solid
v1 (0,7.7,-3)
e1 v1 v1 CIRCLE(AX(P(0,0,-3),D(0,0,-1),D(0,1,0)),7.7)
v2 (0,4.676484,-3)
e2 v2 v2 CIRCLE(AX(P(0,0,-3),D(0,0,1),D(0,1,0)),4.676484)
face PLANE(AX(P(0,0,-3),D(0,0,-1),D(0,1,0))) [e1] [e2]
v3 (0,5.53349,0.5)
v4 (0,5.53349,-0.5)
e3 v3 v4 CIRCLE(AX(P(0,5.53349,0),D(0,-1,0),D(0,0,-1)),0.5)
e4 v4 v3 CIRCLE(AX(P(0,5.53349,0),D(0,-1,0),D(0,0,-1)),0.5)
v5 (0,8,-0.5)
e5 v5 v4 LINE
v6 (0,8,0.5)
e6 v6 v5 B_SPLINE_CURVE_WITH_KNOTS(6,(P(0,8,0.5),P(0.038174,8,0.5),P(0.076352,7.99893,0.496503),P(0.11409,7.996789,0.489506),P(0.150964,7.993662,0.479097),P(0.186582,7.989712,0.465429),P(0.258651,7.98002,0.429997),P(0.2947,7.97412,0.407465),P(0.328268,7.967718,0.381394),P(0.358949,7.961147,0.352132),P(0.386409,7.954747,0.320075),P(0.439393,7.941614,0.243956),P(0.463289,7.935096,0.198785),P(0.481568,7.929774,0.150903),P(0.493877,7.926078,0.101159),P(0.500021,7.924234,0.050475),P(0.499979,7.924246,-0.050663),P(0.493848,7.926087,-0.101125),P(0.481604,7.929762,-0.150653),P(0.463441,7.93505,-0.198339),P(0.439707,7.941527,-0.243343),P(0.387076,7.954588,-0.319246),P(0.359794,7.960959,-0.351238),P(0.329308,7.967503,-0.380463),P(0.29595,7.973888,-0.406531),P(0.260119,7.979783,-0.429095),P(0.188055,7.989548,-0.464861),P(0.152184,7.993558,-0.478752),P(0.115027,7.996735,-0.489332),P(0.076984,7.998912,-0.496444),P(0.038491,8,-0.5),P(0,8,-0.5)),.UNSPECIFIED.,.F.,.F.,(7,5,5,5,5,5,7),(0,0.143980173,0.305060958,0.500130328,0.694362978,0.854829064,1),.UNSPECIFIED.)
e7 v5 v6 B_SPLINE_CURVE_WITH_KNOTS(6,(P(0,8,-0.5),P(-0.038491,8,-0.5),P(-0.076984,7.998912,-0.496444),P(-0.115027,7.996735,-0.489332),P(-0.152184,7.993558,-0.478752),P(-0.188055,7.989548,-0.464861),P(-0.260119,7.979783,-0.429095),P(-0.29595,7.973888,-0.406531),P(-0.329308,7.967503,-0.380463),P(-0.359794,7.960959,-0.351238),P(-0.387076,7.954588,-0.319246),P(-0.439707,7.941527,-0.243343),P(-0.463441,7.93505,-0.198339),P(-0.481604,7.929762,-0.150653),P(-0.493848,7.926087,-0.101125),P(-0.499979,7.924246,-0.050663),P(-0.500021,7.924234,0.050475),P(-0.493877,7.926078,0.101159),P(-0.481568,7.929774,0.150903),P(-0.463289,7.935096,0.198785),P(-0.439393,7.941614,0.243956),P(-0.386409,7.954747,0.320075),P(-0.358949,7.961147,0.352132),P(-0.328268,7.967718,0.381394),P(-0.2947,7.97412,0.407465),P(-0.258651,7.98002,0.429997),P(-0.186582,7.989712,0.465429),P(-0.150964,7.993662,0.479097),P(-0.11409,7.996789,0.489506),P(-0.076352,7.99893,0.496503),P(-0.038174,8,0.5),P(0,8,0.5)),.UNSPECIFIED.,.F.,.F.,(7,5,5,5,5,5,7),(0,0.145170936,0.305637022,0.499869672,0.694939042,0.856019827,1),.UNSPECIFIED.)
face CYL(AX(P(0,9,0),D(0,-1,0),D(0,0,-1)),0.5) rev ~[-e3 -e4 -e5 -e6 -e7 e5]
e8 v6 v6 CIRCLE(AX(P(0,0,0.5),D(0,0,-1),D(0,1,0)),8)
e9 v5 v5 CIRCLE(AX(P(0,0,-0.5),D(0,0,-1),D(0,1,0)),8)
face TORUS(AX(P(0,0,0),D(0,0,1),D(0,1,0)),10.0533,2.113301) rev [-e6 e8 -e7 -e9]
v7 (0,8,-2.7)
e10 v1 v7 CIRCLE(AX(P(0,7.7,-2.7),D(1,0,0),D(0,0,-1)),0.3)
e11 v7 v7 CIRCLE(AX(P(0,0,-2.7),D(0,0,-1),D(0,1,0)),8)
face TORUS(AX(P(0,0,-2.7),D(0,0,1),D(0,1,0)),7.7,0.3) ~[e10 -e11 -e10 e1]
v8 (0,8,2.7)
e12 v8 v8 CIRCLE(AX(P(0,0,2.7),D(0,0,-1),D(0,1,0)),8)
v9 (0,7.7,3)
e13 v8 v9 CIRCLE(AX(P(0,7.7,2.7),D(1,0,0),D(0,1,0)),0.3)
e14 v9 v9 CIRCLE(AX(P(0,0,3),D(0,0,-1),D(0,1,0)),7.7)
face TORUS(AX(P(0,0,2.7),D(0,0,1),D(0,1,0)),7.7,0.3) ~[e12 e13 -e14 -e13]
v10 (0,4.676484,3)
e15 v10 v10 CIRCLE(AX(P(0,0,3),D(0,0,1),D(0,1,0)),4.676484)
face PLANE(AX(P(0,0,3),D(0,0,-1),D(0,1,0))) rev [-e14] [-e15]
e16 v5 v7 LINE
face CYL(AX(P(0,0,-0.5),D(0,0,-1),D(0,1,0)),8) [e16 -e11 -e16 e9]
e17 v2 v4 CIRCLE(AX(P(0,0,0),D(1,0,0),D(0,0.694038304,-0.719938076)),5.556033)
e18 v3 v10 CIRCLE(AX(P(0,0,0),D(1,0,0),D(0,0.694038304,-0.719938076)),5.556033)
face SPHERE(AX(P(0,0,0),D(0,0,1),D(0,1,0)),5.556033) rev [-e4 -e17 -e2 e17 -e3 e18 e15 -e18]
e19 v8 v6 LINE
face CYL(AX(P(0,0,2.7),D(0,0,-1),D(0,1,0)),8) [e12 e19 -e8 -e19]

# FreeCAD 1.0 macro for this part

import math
import FreeCAD as App
import Part
import Sketcher

V = App.Vector
Q = App.Units.Quantity


def add_polygon(sketch, points):
    """Adds a closed chain of lines whose ends are joined by coincident constraints."""
    first, n = sketch.GeometryCount, len(points)
    for a, b in zip(points, points[1:] + points[:1]):
        sketch.addGeometry(Part.LineSegment(App.Vector(*a, 0), App.Vector(*b, 0)), False)
    for i in range(n):
        sketch.addConstraint(Sketcher.Constraint("Coincident", first + i, 2, first + (i + 1) % n, 1))

doc = App.newDocument("Part")
params = doc.addObject("Spreadsheet::Sheet", "Params")
for row, (alias, value) in enumerate([
    ("sketch1_radius", "0.3 mm"),
    ("sketch1_height", "6 mm"),
    ("sketch1_width", "7.7 mm"),
    ("sketch1_height2", "2.2 mm"),
    ("revolution_angle", "360 deg"),
    ("sketch2_height", "8 mm"),
    ("groove_angle", "360 deg"),
    ("sketch3_width", "9 mm"),
    ("sketch3_height", "0.5 mm"),
    ("groove2_angle", "360 deg"),
], start=1):
    params.set(f"A{row}", alias)
    params.set(f"B{row}", "=" + value)
    params.setAlias(f"B{row}", alias)

body = doc.addObject("PartDesign::Body", "Body")

sketch1 = doc.addObject("Sketcher::SketchObject", "Sketch")
body.addObject(sketch1)
sketch1.AttachmentSupport = (doc.YZ_Plane, [""])
sketch1.MapMode = "FlatFace"
sketch1.addGeometry([
    Part.LineSegment(V(0, 3, 0), V(0, -3, 0)),
    Part.LineSegment(V(0, -3, 0), V(7.7, -3, 0)),
    Part.ArcOfCircle(Part.Circle(V(7.7, -2.7, 0), V(0, 0, 1), 0.3), math.radians(-90), math.radians(0)),
    Part.LineSegment(V(8, -2.7, 0), V(8, -0.5, 0)),
    Part.ArcOfCircle(Part.Circle(V(10.0533, 0, 0), V(0, 0, 1), 2.113301), math.radians(166.314239), math.radians(193.685761)),
    Part.LineSegment(V(8, 0.5, 0), V(8, 2.7, 0)),
    Part.ArcOfCircle(Part.Circle(V(7.7, 2.7, 0), V(0, 0, 1), 0.3), math.radians(0), math.radians(90)),
    Part.LineSegment(V(7.7, 3, 0), V(0, 3, 0)),
], False)
sketch1.addConstraint([
    Sketcher.Constraint("Coincident", 0, 2, 1, 1),
    Sketcher.Constraint("Tangent", 1, 2, 2, 1),
    Sketcher.Constraint("Tangent", 2, 2, 3, 1),
    Sketcher.Constraint("Coincident", 3, 2, 4, 2),
    Sketcher.Constraint("Coincident", 4, 1, 5, 1),
    Sketcher.Constraint("Tangent", 5, 2, 6, 1),
    Sketcher.Constraint("Tangent", 6, 2, 7, 1),
    Sketcher.Constraint("Coincident", 7, 2, 0, 1),
    Sketcher.Constraint("Vertical", 0),
    Sketcher.Constraint("Horizontal", 1),
    Sketcher.Constraint("Vertical", 3),
    Sketcher.Constraint("Vertical", 5),
    Sketcher.Constraint("Horizontal", 7),
    Sketcher.Constraint("Equal", 2, 6),
    Sketcher.Constraint("Symmetric", 0, 2, 7, 2, -1, 1),
    Sketcher.Constraint("Symmetric", 3, 2, 4, 1, -1),
    Sketcher.Constraint("Radius", 2, Q("0.3 mm")),
    Sketcher.Constraint("DistanceY", 0, 2, 0, 1, Q("6 mm")),
    Sketcher.Constraint("DistanceX", 1, 1, 1, 2, Q("7.7 mm")),
    Sketcher.Constraint("DistanceY", 3, 1, 3, 2, Q("2.2 mm")),
    Sketcher.Constraint("Radius", 4, Q("2.1133 mm")),
])
sketch1.setExpression("Constraints[16]", "Params.sketch1_radius")
sketch1.setExpression("Constraints[17]", "Params.sketch1_height")
sketch1.setExpression("Constraints[18]", "Params.sketch1_width")
sketch1.setExpression("Constraints[19]", "Params.sketch1_height2")
revolution = doc.addObject("PartDesign::Revolution", "Revolution")
body.addObject(revolution)
revolution.Profile = sketch1
revolution.ReferenceAxis = (sketch1, ["V_Axis"])
revolution.setExpression("Angle", "Params.revolution_angle")

sketch2 = doc.addObject("Sketcher::SketchObject", "Sketch001")
body.addObject(sketch2)
sketch2.AttachmentSupport = (doc.YZ_Plane, [""])
sketch2.MapMode = "FlatFace"
sketch2.addGeometry([
    Part.LineSegment(V(0, 4, 0), V(0, -4, 0)),
    Part.LineSegment(V(0, -4, 0), V(3.8561, -4, 0)),
    Part.ArcOfCircle(Part.Circle(V(0, 0, 0), V(0, 0, 1), 5.556033), math.radians(-46.049368), math.radians(46.049368)),
    Part.LineSegment(V(3.8561, 4, 0), V(0, 4, 0)),
], False)
sketch2.addConstraint([
    Sketcher.Constraint("Coincident", 0, 2, 1, 1),
    Sketcher.Constraint("Coincident", 1, 2, 2, 1),
    Sketcher.Constraint("Coincident", 2, 2, 3, 1),
    Sketcher.Constraint("Coincident", 3, 2, 0, 1),
    Sketcher.Constraint("Vertical", 0),
    Sketcher.Constraint("Horizontal", 1),
    Sketcher.Constraint("Horizontal", 3),
    Sketcher.Constraint("Coincident", 2, 3, -1, 1),
    Sketcher.Constraint("Symmetric", 0, 2, 3, 2, -1, 1),
    Sketcher.Constraint("DistanceY", 0, 2, 0, 1, Q("8 mm")),
    Sketcher.Constraint("Radius", 2, Q("5.556 mm")),
])
sketch2.setExpression("Constraints[9]", "Params.sketch2_height")
groove = doc.addObject("PartDesign::Groove", "Groove")
body.addObject(groove)
groove.Profile = sketch2
groove.ReferenceAxis = (sketch2, ["V_Axis"])
groove.setExpression("Angle", "Params.groove_angle")

sketch3 = doc.addObject("Sketcher::SketchObject", "Sketch002")
body.addObject(sketch3)
sketch3.AttachmentSupport = (doc.YZ_Plane, [""])
sketch3.MapMode = "FlatFace"
add_polygon(sketch3, [(9, 0), (0, 0), (0, -0.5), (9, -0.5)])
sketch3.addConstraint([
    Sketcher.Constraint("Horizontal", 0),
    Sketcher.Constraint("Vertical", 1),
    Sketcher.Constraint("Horizontal", 2),
    Sketcher.Constraint("Vertical", 3),
    Sketcher.Constraint("Coincident", 0, 2, -1, 1),
    Sketcher.Constraint("DistanceX", 0, 2, 0, 1, Q("9 mm")),
    Sketcher.Constraint("DistanceY", 1, 2, 1, 1, Q("0.5 mm")),
])
sketch3.setExpression("Constraints[9]", "Params.sketch3_width")
sketch3.setExpression("Constraints[10]", "Params.sketch3_height")
groove2 = doc.addObject("PartDesign::Groove", "Groove001")
body.addObject(groove2)
groove2.Profile = sketch3
groove2.ReferenceAxis = (sketch3, ["H_Axis"])
groove2.setExpression("Angle", "Params.groove2_angle")

doc.recompute()
